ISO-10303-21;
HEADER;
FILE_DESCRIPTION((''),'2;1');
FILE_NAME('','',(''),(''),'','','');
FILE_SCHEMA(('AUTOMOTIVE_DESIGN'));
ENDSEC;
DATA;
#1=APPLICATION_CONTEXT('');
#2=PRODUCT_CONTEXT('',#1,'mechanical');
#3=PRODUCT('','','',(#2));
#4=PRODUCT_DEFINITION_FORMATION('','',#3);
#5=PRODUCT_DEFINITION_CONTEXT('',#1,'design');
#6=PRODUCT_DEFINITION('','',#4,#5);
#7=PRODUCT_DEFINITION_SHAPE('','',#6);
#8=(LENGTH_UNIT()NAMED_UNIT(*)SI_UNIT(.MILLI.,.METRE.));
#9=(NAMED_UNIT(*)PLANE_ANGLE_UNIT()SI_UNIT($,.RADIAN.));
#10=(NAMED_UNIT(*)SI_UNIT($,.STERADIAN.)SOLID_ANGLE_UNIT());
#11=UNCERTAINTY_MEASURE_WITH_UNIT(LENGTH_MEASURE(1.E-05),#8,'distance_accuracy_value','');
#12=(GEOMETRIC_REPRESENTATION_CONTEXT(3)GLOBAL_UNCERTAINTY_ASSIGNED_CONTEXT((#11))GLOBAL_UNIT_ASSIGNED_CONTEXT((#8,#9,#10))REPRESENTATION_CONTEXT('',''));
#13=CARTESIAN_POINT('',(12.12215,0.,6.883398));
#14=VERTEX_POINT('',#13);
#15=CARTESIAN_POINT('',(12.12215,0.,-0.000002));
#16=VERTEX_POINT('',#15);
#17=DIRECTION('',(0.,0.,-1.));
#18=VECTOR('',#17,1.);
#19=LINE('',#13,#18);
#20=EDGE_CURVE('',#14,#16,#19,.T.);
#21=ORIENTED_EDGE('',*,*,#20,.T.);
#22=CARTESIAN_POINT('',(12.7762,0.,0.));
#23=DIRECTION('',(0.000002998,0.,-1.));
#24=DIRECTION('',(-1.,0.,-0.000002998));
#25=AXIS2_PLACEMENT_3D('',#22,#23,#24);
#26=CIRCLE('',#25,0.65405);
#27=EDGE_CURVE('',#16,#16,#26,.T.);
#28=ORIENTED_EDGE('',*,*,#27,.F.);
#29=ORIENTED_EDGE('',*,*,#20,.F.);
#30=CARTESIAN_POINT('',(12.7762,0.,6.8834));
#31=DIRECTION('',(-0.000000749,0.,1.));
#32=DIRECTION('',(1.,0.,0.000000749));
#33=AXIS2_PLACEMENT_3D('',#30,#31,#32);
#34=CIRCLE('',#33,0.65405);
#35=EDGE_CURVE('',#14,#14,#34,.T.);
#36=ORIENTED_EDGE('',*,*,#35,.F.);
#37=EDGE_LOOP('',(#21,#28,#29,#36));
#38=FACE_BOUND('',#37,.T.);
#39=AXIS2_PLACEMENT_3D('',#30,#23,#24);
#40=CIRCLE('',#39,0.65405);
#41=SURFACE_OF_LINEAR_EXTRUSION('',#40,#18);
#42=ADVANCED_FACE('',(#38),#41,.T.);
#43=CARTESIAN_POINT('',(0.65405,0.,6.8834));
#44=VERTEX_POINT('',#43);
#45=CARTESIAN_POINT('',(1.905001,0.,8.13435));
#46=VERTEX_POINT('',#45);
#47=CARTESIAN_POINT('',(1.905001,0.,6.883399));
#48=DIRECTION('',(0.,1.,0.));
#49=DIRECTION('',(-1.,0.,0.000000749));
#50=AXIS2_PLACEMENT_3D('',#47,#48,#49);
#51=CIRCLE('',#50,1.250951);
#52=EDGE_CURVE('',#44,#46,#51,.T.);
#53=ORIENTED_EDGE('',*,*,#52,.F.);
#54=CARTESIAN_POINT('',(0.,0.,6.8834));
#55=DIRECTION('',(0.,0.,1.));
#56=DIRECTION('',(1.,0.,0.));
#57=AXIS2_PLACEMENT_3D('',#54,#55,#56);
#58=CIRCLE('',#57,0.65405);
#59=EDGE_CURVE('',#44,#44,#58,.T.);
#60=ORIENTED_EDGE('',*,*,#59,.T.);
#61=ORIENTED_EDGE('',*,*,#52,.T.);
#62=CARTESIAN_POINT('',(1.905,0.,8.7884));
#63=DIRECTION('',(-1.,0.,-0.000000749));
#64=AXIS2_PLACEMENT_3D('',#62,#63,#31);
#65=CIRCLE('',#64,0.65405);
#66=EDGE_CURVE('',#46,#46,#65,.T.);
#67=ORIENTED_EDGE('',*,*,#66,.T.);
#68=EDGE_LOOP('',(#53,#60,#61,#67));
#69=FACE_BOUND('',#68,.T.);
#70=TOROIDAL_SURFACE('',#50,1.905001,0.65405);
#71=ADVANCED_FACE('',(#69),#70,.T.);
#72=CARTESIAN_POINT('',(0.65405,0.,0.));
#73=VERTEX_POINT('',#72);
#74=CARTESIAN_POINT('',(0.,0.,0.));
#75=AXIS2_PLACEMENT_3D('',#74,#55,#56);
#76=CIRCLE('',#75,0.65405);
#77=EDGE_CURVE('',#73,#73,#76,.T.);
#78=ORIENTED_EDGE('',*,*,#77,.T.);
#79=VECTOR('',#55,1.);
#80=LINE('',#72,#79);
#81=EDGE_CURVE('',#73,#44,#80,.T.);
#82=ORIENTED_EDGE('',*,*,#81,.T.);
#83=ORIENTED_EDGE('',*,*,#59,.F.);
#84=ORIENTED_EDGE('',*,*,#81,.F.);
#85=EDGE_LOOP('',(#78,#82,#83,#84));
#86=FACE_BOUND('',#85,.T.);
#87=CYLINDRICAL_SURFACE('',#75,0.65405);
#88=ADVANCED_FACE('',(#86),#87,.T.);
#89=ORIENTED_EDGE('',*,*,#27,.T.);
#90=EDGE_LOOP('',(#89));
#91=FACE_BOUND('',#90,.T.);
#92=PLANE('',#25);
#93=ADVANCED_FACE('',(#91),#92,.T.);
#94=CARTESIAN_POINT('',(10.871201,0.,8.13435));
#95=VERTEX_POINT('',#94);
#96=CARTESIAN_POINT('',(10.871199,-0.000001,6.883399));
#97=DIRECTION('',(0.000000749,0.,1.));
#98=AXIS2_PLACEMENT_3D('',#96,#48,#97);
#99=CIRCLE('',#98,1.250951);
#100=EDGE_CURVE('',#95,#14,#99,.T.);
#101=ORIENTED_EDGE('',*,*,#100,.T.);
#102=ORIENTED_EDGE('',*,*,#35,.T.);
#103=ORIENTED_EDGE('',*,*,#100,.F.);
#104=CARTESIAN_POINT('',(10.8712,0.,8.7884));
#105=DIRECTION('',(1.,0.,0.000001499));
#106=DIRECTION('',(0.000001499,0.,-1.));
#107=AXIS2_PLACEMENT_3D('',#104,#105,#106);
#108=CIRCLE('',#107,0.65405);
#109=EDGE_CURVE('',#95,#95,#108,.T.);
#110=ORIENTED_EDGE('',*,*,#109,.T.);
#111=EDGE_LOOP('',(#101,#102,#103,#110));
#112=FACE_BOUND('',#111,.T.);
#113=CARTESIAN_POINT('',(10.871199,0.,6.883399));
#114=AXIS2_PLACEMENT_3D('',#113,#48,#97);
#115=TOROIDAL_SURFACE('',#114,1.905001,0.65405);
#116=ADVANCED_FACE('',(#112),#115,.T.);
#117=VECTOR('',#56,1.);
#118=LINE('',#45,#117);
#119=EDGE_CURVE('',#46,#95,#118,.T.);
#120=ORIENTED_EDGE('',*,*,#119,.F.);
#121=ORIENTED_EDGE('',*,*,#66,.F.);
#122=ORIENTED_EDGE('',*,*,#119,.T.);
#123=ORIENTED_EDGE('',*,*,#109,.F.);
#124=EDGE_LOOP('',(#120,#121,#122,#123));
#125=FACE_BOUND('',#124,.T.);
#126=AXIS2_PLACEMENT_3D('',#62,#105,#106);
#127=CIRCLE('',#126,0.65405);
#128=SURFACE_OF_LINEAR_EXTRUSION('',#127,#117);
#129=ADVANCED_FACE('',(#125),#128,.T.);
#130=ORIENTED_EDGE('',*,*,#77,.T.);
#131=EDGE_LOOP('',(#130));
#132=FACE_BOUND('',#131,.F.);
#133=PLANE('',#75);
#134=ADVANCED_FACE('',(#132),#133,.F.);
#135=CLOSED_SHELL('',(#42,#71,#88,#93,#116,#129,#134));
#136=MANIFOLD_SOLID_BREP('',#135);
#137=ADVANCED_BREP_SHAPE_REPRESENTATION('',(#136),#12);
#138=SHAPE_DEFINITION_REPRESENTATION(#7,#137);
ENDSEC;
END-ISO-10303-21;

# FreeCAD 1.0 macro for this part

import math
import FreeCAD as App
import Part
import Sketcher
Q = App.Units.Quantity

doc = App.newDocument("Part")
body = doc.addObject("PartDesign::Body", "Body")

# Sketch on XY plane
sketch1 = body.newObject("Sketcher::SketchObject", "Sketch")
sketch1.AttachmentSupport = (doc.getObject("XY_Plane"), [""])
sketch1.MapMode = "FlatFace"
sketch1.addGeometry(Part.Circle(App.Vector(0, 0, 0), App.Vector(0, 0, 1), 0.7), False)
sketch1.addConstraint(Sketcher.Constraint("Coincident", 0, 3, -1, 1))
sketch1.addConstraint(Sketcher.Constraint("Diameter", 0, Q("0.0515 in")))

# Sketch on XZ plane
sketch2 = body.newObject("Sketcher::SketchObject", "Sketch001")
sketch2.AttachmentSupport = (doc.getObject("XZ_Plane"), [""])
sketch2.MapMode = "FlatFace"
sketch2.addGeometry(Part.LineSegment(App.Vector(0, 0, 0), App.Vector(0, 6.9, 0)), False)
sketch2.addGeometry(Part.ArcOfCircle(Part.Circle(App.Vector(1.9, 6.9, 0), App.Vector(0, 0, 1), 1.9), math.radians(90), math.radians(180)), False)
sketch2.addGeometry(Part.LineSegment(App.Vector(1.9, 8.8, 0), App.Vector(10.9, 8.8, 0)), False)
sketch2.addGeometry(Part.ArcOfCircle(Part.Circle(App.Vector(10.9, 6.9, 0), App.Vector(0, 0, 1), 1.9), math.radians(0), math.radians(90)), False)
sketch2.addGeometry(Part.LineSegment(App.Vector(12.8, 6.9, 0), App.Vector(12.8, 0, 0)), False)
sketch2.addConstraint(Sketcher.Constraint("Tangent", 0, 2, 1, 2))
sketch2.addConstraint(Sketcher.Constraint("Tangent", 1, 1, 2, 1))
sketch2.addConstraint(Sketcher.Constraint("Tangent", 2, 2, 3, 2))
sketch2.addConstraint(Sketcher.Constraint("Tangent", 3, 1, 4, 1))
sketch2.addConstraint(Sketcher.Constraint("Vertical", 0))
sketch2.addConstraint(Sketcher.Constraint("Horizontal", 2))
sketch2.addConstraint(Sketcher.Constraint("Vertical", 4))
sketch2.addConstraint(Sketcher.Constraint("Coincident", 0, 1, -1, 1))
sketch2.addConstraint(Sketcher.Constraint("Equal", 1, 3))
sketch2.addConstraint(Sketcher.Constraint("PointOnObject", 4, 2, -1))
sketch2.addConstraint(Sketcher.Constraint("Radius", 1, Q("0.0750001 in")))
sketch2.addConstraint(Sketcher.Constraint("DistanceX", 2, 1, 2, 2, Q("0.353 in")))
sketch2.addConstraint(Sketcher.Constraint("DistanceY", 0, 1, 0, 2, Q("0.271 in")))
doc.recompute()

additivepipe = body.newObject("PartDesign::AdditivePipe", "AdditivePipe")
additivepipe.Profile = sketch1
additivepipe.Spine = (sketch2, ["Edge1", "Edge2", "Edge3", "Edge4", "Edge5"])

doc.recompute()
